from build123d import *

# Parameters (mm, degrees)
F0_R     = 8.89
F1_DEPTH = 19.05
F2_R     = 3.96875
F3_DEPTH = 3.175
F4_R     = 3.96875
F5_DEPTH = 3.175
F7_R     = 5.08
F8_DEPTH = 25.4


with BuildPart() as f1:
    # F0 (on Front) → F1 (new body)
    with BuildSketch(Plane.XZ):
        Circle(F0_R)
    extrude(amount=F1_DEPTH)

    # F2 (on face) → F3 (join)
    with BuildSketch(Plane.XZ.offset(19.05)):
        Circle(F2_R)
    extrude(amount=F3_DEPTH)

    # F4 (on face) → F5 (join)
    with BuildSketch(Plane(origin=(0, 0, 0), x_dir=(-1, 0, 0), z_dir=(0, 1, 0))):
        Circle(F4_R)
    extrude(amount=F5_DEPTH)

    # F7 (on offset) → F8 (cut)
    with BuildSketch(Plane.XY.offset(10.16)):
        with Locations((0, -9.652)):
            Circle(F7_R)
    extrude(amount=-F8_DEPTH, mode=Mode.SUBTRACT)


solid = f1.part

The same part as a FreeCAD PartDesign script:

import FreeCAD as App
import Part
import Sketcher
Q = App.Units.Quantity

doc = App.newDocument("Part")
body = doc.addObject("PartDesign::Body", "Body")

sketch1 = doc.addObject("Sketcher::SketchObject", "Sketch")
body.addObject(sketch1)
sketch1.AttachmentSupport = (doc.XZ_Plane, [""])
sketch1.MapMode = "FlatFace"
sketch1.addGeometry(Part.Circle(App.Vector(0, 0, 0), App.Vector(0, 0, 1), 9), False)
sketch1.addConstraint([
    Sketcher.Constraint("Coincident", 0, 3, -1, 1),
    Sketcher.Constraint("Diameter", 0, Q("0.7 in")),
])
pad1 = doc.addObject("PartDesign::Pad", "Pad")
body.addObject(pad1)
pad1.Profile = sketch1
pad1.Length = Q("0.75 in")

sketch2 = doc.addObject("Sketcher::SketchObject", "Sketch001")
body.addObject(sketch2)
sketch2.AttachmentSupport = (doc.XZ_Plane, [""])
sketch2.MapMode = "FlatFace"
sketch2.AttachmentOffset = App.Placement(App.Vector(0, 0, 0.75 * 25.4), App.Rotation())
sketch2.addGeometry(Part.Circle(App.Vector(0, 0, 0), App.Vector(0, 0, 1), 4), False)
sketch2.addConstraint([
    Sketcher.Constraint("Coincident", 0, 3, -1, 1),
    Sketcher.Constraint("Diameter", 0, Q("0.3125 in")),
])
pad2 = doc.addObject("PartDesign::Pad", "Pad001")
body.addObject(pad2)
pad2.Profile = sketch2
pad2.Length = Q("0.125 in")

sketch3 = doc.addObject("Sketcher::SketchObject", "Sketch002")
body.addObject(sketch3)
sketch3.AttachmentSupport = (doc.XZ_Plane, [""])
sketch3.MapMode = "FlatFace"
sketch3.addGeometry(Part.Circle(App.Vector(0, 0, 0), App.Vector(0, 0, 1), 4), False)
sketch3.addConstraint([
    Sketcher.Constraint("Coincident", 0, 3, -1, 1),
    Sketcher.Constraint("Diameter", 0, Q("0.3125 in")),
])
pad3 = doc.addObject("PartDesign::Pad", "Pad002")
body.addObject(pad3)
pad3.Profile = sketch3
pad3.Length = Q("0.125 in")
pad3.Reversed = True

sketch4 = doc.addObject("Sketcher::SketchObject", "Sketch003")
body.addObject(sketch4)
sketch4.AttachmentSupport = (doc.XY_Plane, [""])
sketch4.MapMode = "FlatFace"
sketch4.AttachmentOffset = App.Placement(App.Vector(0, 0, 0.4 * 25.4), App.Rotation())
sketch4.addGeometry(Part.Circle(App.Vector(0, -10, 0), App.Vector(0, 0, 1), 5), False)
sketch4.addConstraint([
    Sketcher.Constraint("PointOnObject", 0, 3, -2),
    Sketcher.Constraint("Diameter", 0, Q("0.4 in")),
    Sketcher.Constraint("DistanceY", 0, 3, -1, 1, Q("0.38 in")),
])
pocket1 = doc.addObject("PartDesign::Pocket", "Pocket")
body.addObject(pocket1)
pocket1.Profile = sketch4
pocket1.Length = Q("1 in")

doc.recompute()
